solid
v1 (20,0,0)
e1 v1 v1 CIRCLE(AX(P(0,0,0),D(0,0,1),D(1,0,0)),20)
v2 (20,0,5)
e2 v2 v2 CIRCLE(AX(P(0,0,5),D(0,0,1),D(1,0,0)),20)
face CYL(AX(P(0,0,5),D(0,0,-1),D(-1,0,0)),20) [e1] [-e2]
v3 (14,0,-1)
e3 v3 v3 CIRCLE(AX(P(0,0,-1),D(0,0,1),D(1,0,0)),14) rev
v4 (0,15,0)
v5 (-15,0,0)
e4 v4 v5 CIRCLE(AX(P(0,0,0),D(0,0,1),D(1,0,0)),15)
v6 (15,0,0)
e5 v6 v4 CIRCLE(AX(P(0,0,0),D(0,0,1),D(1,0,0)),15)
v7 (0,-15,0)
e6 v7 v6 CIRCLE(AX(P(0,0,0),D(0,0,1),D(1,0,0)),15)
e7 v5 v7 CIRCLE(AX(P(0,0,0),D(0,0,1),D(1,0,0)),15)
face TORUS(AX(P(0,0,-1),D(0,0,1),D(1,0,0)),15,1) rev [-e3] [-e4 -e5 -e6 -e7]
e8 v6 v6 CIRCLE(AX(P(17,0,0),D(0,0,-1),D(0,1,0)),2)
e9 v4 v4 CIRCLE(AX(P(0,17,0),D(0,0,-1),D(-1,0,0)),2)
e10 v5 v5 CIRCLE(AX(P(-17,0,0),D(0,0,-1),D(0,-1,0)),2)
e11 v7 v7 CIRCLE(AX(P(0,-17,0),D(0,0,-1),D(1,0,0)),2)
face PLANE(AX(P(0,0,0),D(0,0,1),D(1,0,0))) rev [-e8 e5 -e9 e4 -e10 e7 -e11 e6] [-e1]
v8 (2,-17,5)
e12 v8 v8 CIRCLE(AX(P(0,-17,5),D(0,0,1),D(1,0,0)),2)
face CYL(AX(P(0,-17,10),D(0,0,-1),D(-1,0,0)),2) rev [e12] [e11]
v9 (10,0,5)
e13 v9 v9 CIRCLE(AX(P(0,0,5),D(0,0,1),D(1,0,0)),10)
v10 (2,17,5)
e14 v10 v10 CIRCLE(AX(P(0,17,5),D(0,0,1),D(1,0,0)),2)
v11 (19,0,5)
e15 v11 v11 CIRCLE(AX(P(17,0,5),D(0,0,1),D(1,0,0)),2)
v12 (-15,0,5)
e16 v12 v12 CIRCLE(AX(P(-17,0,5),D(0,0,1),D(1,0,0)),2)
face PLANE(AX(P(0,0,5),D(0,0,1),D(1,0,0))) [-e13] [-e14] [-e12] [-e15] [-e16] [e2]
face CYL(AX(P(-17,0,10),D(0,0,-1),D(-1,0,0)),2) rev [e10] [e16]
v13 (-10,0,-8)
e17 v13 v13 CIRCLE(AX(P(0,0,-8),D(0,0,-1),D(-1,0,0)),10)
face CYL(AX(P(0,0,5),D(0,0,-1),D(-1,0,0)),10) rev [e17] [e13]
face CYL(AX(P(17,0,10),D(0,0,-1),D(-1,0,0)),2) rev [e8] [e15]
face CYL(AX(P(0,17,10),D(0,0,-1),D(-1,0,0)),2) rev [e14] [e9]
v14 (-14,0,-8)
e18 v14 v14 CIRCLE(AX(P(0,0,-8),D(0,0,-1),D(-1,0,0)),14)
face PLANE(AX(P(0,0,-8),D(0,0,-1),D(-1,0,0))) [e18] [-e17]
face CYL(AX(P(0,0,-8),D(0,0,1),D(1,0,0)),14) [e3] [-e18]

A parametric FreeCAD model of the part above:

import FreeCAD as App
import Part
import Sketcher

V = App.Vector
Q = App.Units.Quantity


def edges_at(feature, points):
    """Names of the edges that pass closest to the given points."""
    edges = feature.Shape.Edges
    near = lambda p: min(range(len(edges)), key=lambda i: edges[i].distToShape(Part.Vertex(*p))[0])
    return sorted({f"Edge{near(p) + 1}" for p in points})

doc = App.newDocument("Part")
body = doc.addObject("PartDesign::Body", "Body")

# Sketch on XY plane
sketch1 = body.newObject("Sketcher::SketchObject", "Sketch")
sketch1.AttachmentSupport = (doc.getObject("XY_Plane"), [""])
sketch1.MapMode = "FlatFace"
sketch1.addGeometry(Part.Circle(V(0, 0, 0), V(0, 0, 1), 20), False)
sketch1.addGeometry(Part.Circle(V(0, 0, 0), V(0, 0, 1), 10), False)
sketch1.addConstraint(Sketcher.Constraint("Coincident", 0, 3, -1, 1))
sketch1.addConstraint(Sketcher.Constraint("Coincident", 1, 3, -1, 1))
sketch1.addConstraint(Sketcher.Constraint("Diameter", 0, Q("40 mm")))
sketch1.addConstraint(Sketcher.Constraint("Diameter", 1, Q("20 mm")))
pad1 = body.newObject("PartDesign::Pad", "Pad")
pad1.Profile = sketch1
pad1.Length = 5

# Sketch on XY plane
sketch2 = body.newObject("Sketcher::SketchObject", "Sketch001")
sketch2.AttachmentSupport = (doc.getObject("XY_Plane"), [""])
sketch2.MapMode = "FlatFace"
sketch2.AttachmentOffset = App.Placement(V(0, 0, -8), App.Rotation())
sketch2.addGeometry(Part.Circle(V(0, 0, 0), V(0, 0, 1), 14), False)
sketch2.addGeometry(Part.Circle(V(0, 0, 0), V(0, 0, 1), 10), False)
sketch2.addConstraint(Sketcher.Constraint("Coincident", 0, 3, -1, 1))
sketch2.addConstraint(Sketcher.Constraint("Coincident", 1, 3, -1, 1))
sketch2.addConstraint(Sketcher.Constraint("Diameter", 0, Q("28 mm")))
sketch2.addConstraint(Sketcher.Constraint("Diameter", 1, Q("20 mm")))
pad2 = body.newObject("PartDesign::Pad", "Pad001")
pad2.Profile = sketch2
pad2.Length = 8
doc.recompute()

fillet = body.newObject("PartDesign::Fillet", "Fillet")
fillet.Base = (pad2, edges_at(pad2, [(-14, 0, 0)]))
fillet.Radius = 1

# Sketch on XY plane
sketch3 = body.newObject("Sketcher::SketchObject", "Sketch002")
sketch3.AttachmentSupport = (doc.getObject("XY_Plane"), [""])
sketch3.MapMode = "FlatFace"
sketch3.addGeometry(Part.Circle(V(0, 17, 0), V(0, 0, 1), 2), False)
sketch3.addConstraint(Sketcher.Constraint("PointOnObject", 0, 3, -2))
sketch3.addConstraint(Sketcher.Constraint("Diameter", 0, Q("4 mm")))
sketch3.addConstraint(Sketcher.Constraint("DistanceY", -1, 1, 0, 3, Q("17 mm")))
pocket1 = body.newObject("PartDesign::Pocket", "Pocket")
pocket1.Profile = sketch3
pocket1.Length = 10
pocket1.Reversed = True
doc.recompute()

polarpattern = body.newObject("PartDesign::PolarPattern", "PolarPattern")
polarpattern.Originals = [pocket1]
polarpattern.Axis = (doc.getObject("Z_Axis"), [""])
polarpattern.Angle = 360
polarpattern.Occurrences = 4
body.Tip = polarpattern

doc.recompute()
